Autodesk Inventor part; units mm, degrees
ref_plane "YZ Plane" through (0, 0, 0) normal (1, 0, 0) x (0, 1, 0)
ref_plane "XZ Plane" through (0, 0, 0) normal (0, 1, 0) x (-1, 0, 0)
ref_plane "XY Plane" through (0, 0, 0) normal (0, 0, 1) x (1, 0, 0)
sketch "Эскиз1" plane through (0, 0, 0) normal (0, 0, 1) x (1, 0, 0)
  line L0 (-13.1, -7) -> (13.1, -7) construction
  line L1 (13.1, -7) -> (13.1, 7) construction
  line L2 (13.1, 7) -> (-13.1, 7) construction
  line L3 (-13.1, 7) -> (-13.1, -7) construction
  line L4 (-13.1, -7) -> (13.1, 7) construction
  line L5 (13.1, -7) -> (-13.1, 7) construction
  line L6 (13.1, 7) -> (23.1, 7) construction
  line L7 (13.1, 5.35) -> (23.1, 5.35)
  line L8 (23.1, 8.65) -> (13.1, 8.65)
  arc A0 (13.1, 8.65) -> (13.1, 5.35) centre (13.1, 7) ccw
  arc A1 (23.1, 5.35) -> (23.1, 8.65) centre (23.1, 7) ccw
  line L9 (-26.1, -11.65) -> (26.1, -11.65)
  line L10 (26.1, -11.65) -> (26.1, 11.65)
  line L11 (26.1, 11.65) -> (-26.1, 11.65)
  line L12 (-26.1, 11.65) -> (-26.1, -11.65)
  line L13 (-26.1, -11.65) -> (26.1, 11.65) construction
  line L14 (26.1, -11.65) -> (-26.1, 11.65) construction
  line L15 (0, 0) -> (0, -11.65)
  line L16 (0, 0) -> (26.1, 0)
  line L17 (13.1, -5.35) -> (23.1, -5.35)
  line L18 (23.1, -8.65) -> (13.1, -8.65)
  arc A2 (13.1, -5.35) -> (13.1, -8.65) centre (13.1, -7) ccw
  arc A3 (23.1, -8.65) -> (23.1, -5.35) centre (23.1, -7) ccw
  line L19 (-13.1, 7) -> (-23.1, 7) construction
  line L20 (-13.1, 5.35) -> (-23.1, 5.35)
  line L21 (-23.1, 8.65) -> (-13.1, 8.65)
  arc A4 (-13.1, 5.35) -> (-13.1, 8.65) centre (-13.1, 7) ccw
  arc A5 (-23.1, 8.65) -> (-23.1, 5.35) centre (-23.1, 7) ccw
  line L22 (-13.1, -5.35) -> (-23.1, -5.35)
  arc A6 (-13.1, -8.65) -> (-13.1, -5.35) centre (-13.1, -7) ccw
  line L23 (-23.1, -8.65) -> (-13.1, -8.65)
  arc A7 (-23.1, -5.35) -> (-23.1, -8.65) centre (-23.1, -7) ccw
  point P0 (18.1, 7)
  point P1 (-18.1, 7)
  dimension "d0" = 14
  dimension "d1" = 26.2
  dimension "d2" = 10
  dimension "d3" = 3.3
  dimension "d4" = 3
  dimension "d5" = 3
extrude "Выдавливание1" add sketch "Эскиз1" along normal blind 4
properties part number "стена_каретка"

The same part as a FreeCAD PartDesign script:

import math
import FreeCAD as App
import Part
import Sketcher
from FreeCAD import Vector

doc = App.newDocument("Part")
params = doc.addObject("Spreadsheet::Sheet", "Params")
for row, (alias, value) in enumerate([
    ("sketch1_width", "10 mm"),
    ("sketch1_radius", "1.65 mm"),
    ("pad1_length", "4 mm"),
], start=1):
    params.set(f"A{row}", alias)
    params.set(f"B{row}", "=" + value)
    params.setAlias(f"B{row}", alias)

body = doc.addObject("PartDesign::Body", "Body")

sketch1 = body.newObject("Sketcher::SketchObject", "Sketch")
sketch1.AttachmentSupport = (doc.getObject("XY_Plane"), [""])
sketch1.MapMode = "FlatFace"
sketch1.addGeometry(Part.LineSegment(Vector(-26.1, 11.7, 0), Vector(-26.1, -11.7, 0)), False)
sketch1.addGeometry(Part.LineSegment(Vector(-26.1, -11.7, 0), Vector(26.1, -11.7, 0)), False)
sketch1.addGeometry(Part.LineSegment(Vector(26.1, -11.7, 0), Vector(26.1, 11.7, 0)), False)
sketch1.addGeometry(Part.LineSegment(Vector(26.1, 11.7, 0), Vector(-26.1, 11.7, 0)), False)
sketch1.addGeometry(Part.LineSegment(Vector(-23.1, -5.3, 0), Vector(-13.1, -5.3, 0)), False)
sketch1.addGeometry(Part.ArcOfCircle(Part.Circle(Vector(-13.1, -7, 0), Vector(0, 0, 1), 1.7), math.radians(-90), math.radians(90)), False)
sketch1.addGeometry(Part.LineSegment(Vector(-13.1, -8.7, 0), Vector(-23.1, -8.7, 0)), False)
sketch1.addGeometry(Part.ArcOfCircle(Part.Circle(Vector(-23.1, -7, 0), Vector(0, 0, 1), 1.7), math.radians(90), math.radians(270)), False)
sketch1.addGeometry(Part.ArcOfCircle(Part.Circle(Vector(-13.1, 7, 0), Vector(0, 0, 1), 1.7), math.radians(-90), math.radians(90)), False)
sketch1.addGeometry(Part.LineSegment(Vector(-13.1, 5.3, 0), Vector(-23.1, 5.3, 0)), False)
sketch1.addGeometry(Part.ArcOfCircle(Part.Circle(Vector(-23.1, 7, 0), Vector(0, 0, 1), 1.7), math.radians(90), math.radians(270)), False)
sketch1.addGeometry(Part.LineSegment(Vector(-23.1, 8.7, 0), Vector(-13.1, 8.7, 0)), False)
sketch1.addGeometry(Part.LineSegment(Vector(23.1, 5.3, 0), Vector(13.1, 5.3, 0)), False)
sketch1.addGeometry(Part.ArcOfCircle(Part.Circle(Vector(13.1, 7, 0), Vector(0, 0, 1), 1.7), math.radians(90), math.radians(270)), False)
sketch1.addGeometry(Part.LineSegment(Vector(13.1, 8.7, 0), Vector(23.1, 8.7, 0)), False)
sketch1.addGeometry(Part.ArcOfCircle(Part.Circle(Vector(23.1, 7, 0), Vector(0, 0, 1), 1.7), math.radians(-90), math.radians(90)), False)
sketch1.addGeometry(Part.ArcOfCircle(Part.Circle(Vector(23.1, -7, 0), Vector(0, 0, 1), 1.7), math.radians(-90), math.radians(90)), False)
sketch1.addGeometry(Part.LineSegment(Vector(23.1, -8.7, 0), Vector(13.1, -8.7, 0)), False)
sketch1.addGeometry(Part.ArcOfCircle(Part.Circle(Vector(13.1, -7, 0), Vector(0, 0, 1), 1.7), math.radians(90), math.radians(270)), False)
sketch1.addGeometry(Part.LineSegment(Vector(13.1, -5.3, 0), Vector(23.1, -5.3, 0)), False)
sketch1.addConstraint(Sketcher.Constraint("Coincident", 0, 2, 1, 1))
sketch1.addConstraint(Sketcher.Constraint("Coincident", 1, 2, 2, 1))
sketch1.addConstraint(Sketcher.Constraint("Coincident", 2, 2, 3, 1))
sketch1.addConstraint(Sketcher.Constraint("Coincident", 3, 2, 0, 1))
sketch1.addConstraint(Sketcher.Constraint("Tangent", 4, 2, 5, 2))
sketch1.addConstraint(Sketcher.Constraint("Tangent", 5, 1, 6, 1))
sketch1.addConstraint(Sketcher.Constraint("Tangent", 6, 2, 7, 2))
sketch1.addConstraint(Sketcher.Constraint("Tangent", 7, 1, 4, 1))
sketch1.addConstraint(Sketcher.Constraint("Tangent", 8, 1, 9, 1))
sketch1.addConstraint(Sketcher.Constraint("Tangent", 9, 2, 10, 2))
sketch1.addConstraint(Sketcher.Constraint("Tangent", 10, 1, 11, 1))
sketch1.addConstraint(Sketcher.Constraint("Tangent", 11, 2, 8, 2))
sketch1.addConstraint(Sketcher.Constraint("Tangent", 12, 2, 13, 2))
sketch1.addConstraint(Sketcher.Constraint("Tangent", 13, 1, 14, 1))
sketch1.addConstraint(Sketcher.Constraint("Tangent", 14, 2, 15, 2))
sketch1.addConstraint(Sketcher.Constraint("Tangent", 15, 1, 12, 1))
sketch1.addConstraint(Sketcher.Constraint("Tangent", 16, 1, 17, 1))
sketch1.addConstraint(Sketcher.Constraint("Tangent", 17, 2, 18, 2))
sketch1.addConstraint(Sketcher.Constraint("Tangent", 18, 1, 19, 1))
sketch1.addConstraint(Sketcher.Constraint("Tangent", 19, 2, 16, 2))
sketch1.addConstraint(Sketcher.Constraint("Vertical", 0))
sketch1.addConstraint(Sketcher.Constraint("Horizontal", 1))
sketch1.addConstraint(Sketcher.Constraint("Vertical", 2))
sketch1.addConstraint(Sketcher.Constraint("Horizontal", 3))
sketch1.addConstraint(Sketcher.Constraint("Horizontal", 4))
sketch1.addConstraint(Sketcher.Constraint("Horizontal", 6))
sketch1.addConstraint(Sketcher.Constraint("Horizontal", 9))
sketch1.addConstraint(Sketcher.Constraint("Horizontal", 11))
sketch1.addConstraint(Sketcher.Constraint("Horizontal", 12))
sketch1.addConstraint(Sketcher.Constraint("Horizontal", 14))
sketch1.addConstraint(Sketcher.Constraint("Horizontal", 17))
sketch1.addConstraint(Sketcher.Constraint("Horizontal", 19))
sketch1.addConstraint(Sketcher.Constraint("Equal", 7, 8))
sketch1.addConstraint(Sketcher.Constraint("Equal", 10, 13))
sketch1.addConstraint(Sketcher.Constraint("Equal", 15, 16))
sketch1.addConstraint(Sketcher.Constraint("Symmetric", 5, 3, 13, 3, -1, 1))
sketch1.addConstraint(Sketcher.Constraint("Symmetric", 10, 3, 16, 3, -1, 1))
sketch1.addConstraint(Sketcher.Constraint("Symmetric", 0, 2, 2, 2, -1, 1))
sketch1.addConstraint(Sketcher.Constraint("Symmetric", 8, 3, 13, 3, -2))
sketch1.addConstraint(Sketcher.Constraint("Vertical", 7, 3, 10, 3))
sketch1.addConstraint(Sketcher.Constraint("Vertical", 15, 3, 16, 3))
sketch1.addConstraint(Sketcher.Constraint("Vertical", 13, 3, 18, 3))
sketch1.addConstraint(Sketcher.Constraint("DistanceX", 4, 1, 4, 2, 10.0))
sketch1.addConstraint(Sketcher.Constraint("Radius", 5, 1.65))
sketch1.addConstraint(Sketcher.Constraint("DistanceY", 5, 3, 8, 3, 14.0))
sketch1.addConstraint(Sketcher.Constraint("DistanceX", 0, 2, 7, 3, 3.0))
sketch1.addConstraint(Sketcher.Constraint("DistanceY", 0, 2, 5, 1, 3.0))
sketch1.addConstraint(Sketcher.Constraint("DistanceX", 8, 3, 13, 3, 26.2))
sketch1.setExpression("Constraints[42]", "Params.sketch1_width")
sketch1.setExpression("Constraints[43]", "Params.sketch1_radius")
pad1 = body.newObject("PartDesign::Pad", "Pad")
pad1.Profile = sketch1
pad1.setExpression("Length", "Params.pad1_length")

doc.recompute()
